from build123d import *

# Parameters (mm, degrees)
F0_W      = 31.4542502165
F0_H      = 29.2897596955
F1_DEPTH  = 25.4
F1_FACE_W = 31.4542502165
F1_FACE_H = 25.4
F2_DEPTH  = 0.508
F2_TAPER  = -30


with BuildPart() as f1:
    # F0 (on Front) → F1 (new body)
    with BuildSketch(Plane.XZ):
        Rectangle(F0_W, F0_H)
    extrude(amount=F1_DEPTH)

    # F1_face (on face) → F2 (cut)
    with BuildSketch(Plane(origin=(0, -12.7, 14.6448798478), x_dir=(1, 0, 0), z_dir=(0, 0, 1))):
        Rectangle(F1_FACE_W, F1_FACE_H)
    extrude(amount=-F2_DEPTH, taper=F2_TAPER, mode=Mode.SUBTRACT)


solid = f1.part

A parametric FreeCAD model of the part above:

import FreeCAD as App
import Part
import Sketcher

V = App.Vector
Q = App.Units.Quantity


def add_polygon(sketch, points):
    """Adds a closed chain of lines whose ends are joined by coincident constraints."""
    first, n = sketch.GeometryCount, len(points)
    for a, b in zip(points, points[1:] + points[:1]):
        sketch.addGeometry(Part.LineSegment(App.Vector(*a, 0), App.Vector(*b, 0)), False)
    for i in range(n):
        sketch.addConstraint(Sketcher.Constraint("Coincident", first + i, 2, first + (i + 1) % n, 1))

doc = App.newDocument("Part")
body = doc.addObject("PartDesign::Body", "Body")

sketch1 = body.newObject("Sketcher::SketchObject", "Sketch")
sketch1.AttachmentSupport = (doc.getObject("XZ_Plane"), [""])
sketch1.MapMode = "FlatFace"
add_polygon(sketch1, [(-15.727125, 14.64488), (-15.727125, -14.64488), (15.727125, -14.64488), (15.727125, 14.64488)])
sketch1.addConstraint(Sketcher.Constraint("Vertical", 0))
sketch1.addConstraint(Sketcher.Constraint("Horizontal", 1))
sketch1.addConstraint(Sketcher.Constraint("Vertical", 2))
sketch1.addConstraint(Sketcher.Constraint("Horizontal", 3))
sketch1.addConstraint(Sketcher.Constraint("Symmetric", 0, 2, 2, 2, -1, 1))
sketch1.addConstraint(Sketcher.Constraint("DistanceX", 1, 1, 1, 2, 31.45425))
sketch1.addConstraint(Sketcher.Constraint("DistanceY", 0, 2, 0, 1, 29.28976))
pad1 = body.newObject("PartDesign::Pad", "Pad")
pad1.Profile = sketch1
pad1.Length = Q("1 in")

sketch2 = body.newObject("Sketcher::SketchObject", "Sketch001")
sketch2.AttachmentSupport = (doc.getObject("XY_Plane"), [""])
sketch2.MapMode = "FlatFace"
sketch2.AttachmentOffset = App.Placement(V(0, 0, 14.64488), App.Rotation())
add_polygon(sketch2, [(-15.727125, 0), (-15.727125, -25.4), (15.727125, -25.4), (15.727125, 0)])
sketch2.addConstraint(Sketcher.Constraint("Vertical", 0))
sketch2.addConstraint(Sketcher.Constraint("Horizontal", 1))
sketch2.addConstraint(Sketcher.Constraint("Vertical", 2))
sketch2.addConstraint(Sketcher.Constraint("Horizontal", 3))
sketch2.addConstraint(Sketcher.Constraint("Symmetric", 2, 2, 3, 2, -1, 1))
sketch2.addConstraint(Sketcher.Constraint("DistanceY", 0, 2, 0, 1, Q("1 in")))
sketch2.addConstraint(Sketcher.Constraint("DistanceX", 1, 1, 1, 2, 31.45425))
pocket1 = body.newObject("PartDesign::Pocket", "Pocket")
pocket1.Profile = sketch2
pocket1.Length = Q("0.02 in")
pocket1.TaperAngle = 30

doc.recompute()
